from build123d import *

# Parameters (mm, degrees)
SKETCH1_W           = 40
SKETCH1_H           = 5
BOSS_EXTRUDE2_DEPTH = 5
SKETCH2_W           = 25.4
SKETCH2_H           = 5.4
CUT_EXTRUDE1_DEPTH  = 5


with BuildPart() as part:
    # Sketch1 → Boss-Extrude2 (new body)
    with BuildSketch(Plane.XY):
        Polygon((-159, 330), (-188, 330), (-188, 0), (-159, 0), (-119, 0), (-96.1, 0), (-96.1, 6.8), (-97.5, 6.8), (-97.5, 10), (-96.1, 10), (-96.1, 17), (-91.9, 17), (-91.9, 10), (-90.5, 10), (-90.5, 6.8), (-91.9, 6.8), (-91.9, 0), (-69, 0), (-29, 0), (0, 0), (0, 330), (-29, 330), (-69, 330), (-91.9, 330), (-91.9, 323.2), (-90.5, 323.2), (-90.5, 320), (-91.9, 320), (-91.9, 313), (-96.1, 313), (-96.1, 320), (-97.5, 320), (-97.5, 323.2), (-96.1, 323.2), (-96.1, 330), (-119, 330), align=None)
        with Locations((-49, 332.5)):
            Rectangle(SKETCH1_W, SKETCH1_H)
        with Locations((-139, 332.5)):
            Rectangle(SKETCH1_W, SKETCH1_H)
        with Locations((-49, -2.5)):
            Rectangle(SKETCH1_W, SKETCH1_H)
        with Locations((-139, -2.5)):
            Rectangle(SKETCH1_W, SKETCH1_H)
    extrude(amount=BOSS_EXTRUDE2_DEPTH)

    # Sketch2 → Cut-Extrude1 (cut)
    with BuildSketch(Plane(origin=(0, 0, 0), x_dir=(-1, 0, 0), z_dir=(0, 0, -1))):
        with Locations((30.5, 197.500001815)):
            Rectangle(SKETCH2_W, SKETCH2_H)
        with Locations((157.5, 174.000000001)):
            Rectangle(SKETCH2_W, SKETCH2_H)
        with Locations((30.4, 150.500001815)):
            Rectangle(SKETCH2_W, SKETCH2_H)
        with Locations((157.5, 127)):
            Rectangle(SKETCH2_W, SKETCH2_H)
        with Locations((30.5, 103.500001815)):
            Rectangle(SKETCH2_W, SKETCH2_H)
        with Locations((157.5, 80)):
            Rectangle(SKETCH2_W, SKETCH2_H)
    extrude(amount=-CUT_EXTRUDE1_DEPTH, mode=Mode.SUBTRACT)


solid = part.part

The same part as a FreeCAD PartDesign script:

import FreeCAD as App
import Part
import Sketcher
from FreeCAD import Vector


def add_polygon(sketch, points):
    """Adds a closed chain of lines whose ends are joined by coincident constraints."""
    first, n = sketch.GeometryCount, len(points)
    for a, b in zip(points, points[1:] + points[:1]):
        sketch.addGeometry(Part.LineSegment(App.Vector(*a, 0), App.Vector(*b, 0)), False)
    for i in range(n):
        sketch.addConstraint(Sketcher.Constraint("Coincident", first + i, 2, first + (i + 1) % n, 1))

doc = App.newDocument("Part")
body = doc.addObject("PartDesign::Body", "Body")

# Sketch on XY plane
sketch1 = doc.addObject("Sketcher::SketchObject", "Sketch")
body.addObject(sketch1)
sketch1.AttachmentSupport = (doc.XY_Plane, [""])
sketch1.MapMode = "FlatFace"
add_polygon(sketch1, [(-188, 330), (-188, 0), (-159, 0), (-159, -5), (-119, -5), (-119, 0), (-96.1, 0), (-96.1, 6.8), (-97.5, 6.8), (-97.5, 10), (-96.1, 10), (-96.1, 17), (-91.9, 17), (-91.9, 10), (-90.5, 10), (-90.5, 6.8), (-91.9, 6.8), (-91.9, 0), (-69, 0), (-69, -5), (-29, -5), (-29, 0), (0, 0), (0, 330), (-29, 330), (-29, 335), (-69, 335), (-69, 330), (-91.9, 330), (-91.9, 323.2), (-90.5, 323.2), (-90.5, 320), (-91.9, 320), (-91.9, 313), (-96.1, 313), (-96.1, 320), (-97.5, 320), (-97.5, 323.2), (-96.1, 323.2), (-96.1, 330), (-119, 330), (-119, 335), (-159, 335), (-159, 330)])  # lines 0-43
sketch1.addConstraint([
    Sketcher.Constraint("Vertical", 0),
    Sketcher.Constraint("Horizontal", 1),
    Sketcher.Constraint("Vertical", 2),
    Sketcher.Constraint("Horizontal", 3),
    Sketcher.Constraint("Vertical", 4),
    Sketcher.Constraint("Horizontal", 5),
    Sketcher.Constraint("Vertical", 6),
    Sketcher.Constraint("Horizontal", 7),
    Sketcher.Constraint("Vertical", 8),
    Sketcher.Constraint("Horizontal", 9),
    Sketcher.Constraint("Vertical", 10),
    Sketcher.Constraint("Horizontal", 11),
    Sketcher.Constraint("Vertical", 12),
    Sketcher.Constraint("Horizontal", 13),
    Sketcher.Constraint("Vertical", 14),
    Sketcher.Constraint("Horizontal", 15),
    Sketcher.Constraint("Vertical", 16),
    Sketcher.Constraint("Horizontal", 17),
    Sketcher.Constraint("Vertical", 18),
    Sketcher.Constraint("Horizontal", 19),
    Sketcher.Constraint("Vertical", 20),
    Sketcher.Constraint("Horizontal", 21),
    Sketcher.Constraint("Vertical", 22),
    Sketcher.Constraint("Horizontal", 23),
    Sketcher.Constraint("Vertical", 24),
    Sketcher.Constraint("Horizontal", 25),
    Sketcher.Constraint("Vertical", 26),
    Sketcher.Constraint("Horizontal", 27),
    Sketcher.Constraint("Vertical", 28),
    Sketcher.Constraint("Horizontal", 29),
    Sketcher.Constraint("Vertical", 30),
    Sketcher.Constraint("Horizontal", 31),
    Sketcher.Constraint("Vertical", 32),
    Sketcher.Constraint("Horizontal", 33),
    Sketcher.Constraint("Vertical", 34),
    Sketcher.Constraint("Horizontal", 35),
    Sketcher.Constraint("Vertical", 36),
    Sketcher.Constraint("Horizontal", 37),
    Sketcher.Constraint("Vertical", 38),
    Sketcher.Constraint("Horizontal", 39),
    Sketcher.Constraint("Vertical", 40),
    Sketcher.Constraint("Horizontal", 41),
    Sketcher.Constraint("Vertical", 42),
    Sketcher.Constraint("Horizontal", 43),
    Sketcher.Constraint("Coincident", 21, 2, -1, 1),
    Sketcher.Constraint("PointOnObject", 0, 2, -1),
    Sketcher.Constraint("PointOnObject", 4, 2, -1),
    Sketcher.Constraint("PointOnObject", 16, 2, -1),
    Sketcher.Constraint("Horizontal", 9, 2, 12, 2),
    Sketcher.Constraint("Horizontal", 7, 2, 14, 2),
    Sketcher.Constraint("Horizontal", 3, 2, 18, 2),
    Sketcher.Constraint("Horizontal", 23, 2, 26, 2),
    Sketcher.Constraint("Horizontal", 31, 2, 34, 2),
    Sketcher.Constraint("Horizontal", 29, 2, 36, 2),
    Sketcher.Constraint("Horizontal", 27, 2, 38, 2),
    Sketcher.Constraint("Horizontal", 25, 2, 40, 2),
    Sketcher.Constraint("Horizontal", 39, 2, 42, 2),
    Sketcher.Constraint("Vertical", 6, 2, 9, 2),
    Sketcher.Constraint("Vertical", 12, 2, 15, 2),
    Sketcher.Constraint("Vertical", 20, 2, 23, 2),
    Sketcher.Constraint("Vertical", 18, 2, 25, 2),
    Sketcher.Constraint("Vertical", 16, 2, 27, 2),
    Sketcher.Constraint("Vertical", 14, 2, 29, 2),
    Sketcher.Constraint("Vertical", 28, 2, 31, 2),
    Sketcher.Constraint("Vertical", 10, 2, 33, 2),
    Sketcher.Constraint("Vertical", 8, 2, 35, 2),
    Sketcher.Constraint("Vertical", 34, 2, 37, 2),
    Sketcher.Constraint("Vertical", 4, 2, 39, 2),
    Sketcher.Constraint("Vertical", 2, 2, 41, 2),
    Sketcher.Constraint("Equal", 9, 13),
    Sketcher.Constraint("Equal", 5, 17),
    Sketcher.Constraint("Equal", 3, 19),
    Sketcher.Constraint("Equal", 1, 21),
    Sketcher.Constraint("Equal", 20, 24),
    Sketcher.Constraint("Equal", 16, 28),
    Sketcher.Constraint("Equal", 14, 30),
    Sketcher.Constraint("Equal", 12, 32),
    Sketcher.Constraint("DistanceX", 1, 1, 1, 2, 29.0),
    Sketcher.Constraint("DistanceX", 3, 1, 3, 2, 40.0),
    Sketcher.Constraint("DistanceY", 0, 2, 0, 1, 330.0),
    Sketcher.Constraint("DistanceY", 2, 2, 2, 1, 5.0),
    Sketcher.Constraint("DistanceY", 10, 1, 10, 2, 7.0),
    Sketcher.Constraint("DistanceX", 5, 1, 5, 2, 22.9),
    Sketcher.Constraint("DistanceX", 7, 2, 7, 1, 1.4),
    Sketcher.Constraint("DistanceX", 11, 1, 11, 2, 4.2),
    Sketcher.Constraint("DistanceY", 6, 1, 6, 2, 6.8),
    Sketcher.Constraint("DistanceY", 8, 1, 8, 2, 3.2),
])
pad1 = doc.addObject("PartDesign::Pad", "Pad")
body.addObject(pad1)
pad1.Profile = sketch1
pad1.Length = 5

# Sketch on XY plane
sketch2 = doc.addObject("Sketcher::SketchObject", "Sketch001")
body.addObject(sketch2)
sketch2.AttachmentSupport = (doc.XY_Plane, [""])
sketch2.MapMode = "FlatFace"
add_polygon(sketch2, [(-18, 200), (-18, 195), (-43, 195), (-43, 200)])  # lines 0-3
add_polygon(sketch2, [(-145, 177), (-145, 171), (-170, 171), (-170, 177)])  # lines 4-7
add_polygon(sketch2, [(-18, 153), (-18, 148), (-43, 148), (-43, 153)])  # lines 8-11
add_polygon(sketch2, [(-145, 130), (-145, 124), (-170, 124), (-170, 130)])  # lines 12-15
add_polygon(sketch2, [(-18, 106), (-18, 101), (-43, 101), (-43, 106)])  # lines 16-19
add_polygon(sketch2, [(-145, 83), (-145, 77), (-170, 77), (-170, 83)])  # lines 20-23
sketch2.addConstraint([
    Sketcher.Constraint("Vertical", 0),
    Sketcher.Constraint("Horizontal", 1),
    Sketcher.Constraint("Vertical", 2),
    Sketcher.Constraint("Horizontal", 3),
    Sketcher.Constraint("Vertical", 4),
    Sketcher.Constraint("Horizontal", 5),
    Sketcher.Constraint("Vertical", 6),
    Sketcher.Constraint("Horizontal", 7),
    Sketcher.Constraint("Vertical", 8),
    Sketcher.Constraint("Horizontal", 9),
    Sketcher.Constraint("Vertical", 10),
    Sketcher.Constraint("Horizontal", 11),
    Sketcher.Constraint("Vertical", 12),
    Sketcher.Constraint("Horizontal", 13),
    Sketcher.Constraint("Vertical", 14),
    Sketcher.Constraint("Horizontal", 15),
    Sketcher.Constraint("Vertical", 16),
    Sketcher.Constraint("Horizontal", 17),
    Sketcher.Constraint("Vertical", 18),
    Sketcher.Constraint("Horizontal", 19),
    Sketcher.Constraint("Vertical", 20),
    Sketcher.Constraint("Horizontal", 21),
    Sketcher.Constraint("Vertical", 22),
    Sketcher.Constraint("Horizontal", 23),
    Sketcher.Constraint("Vertical", 7, 2, 12, 2),
    Sketcher.Constraint("Vertical", 6, 2, 13, 2),
    Sketcher.Constraint("Vertical", 3, 2, 16, 2),
    Sketcher.Constraint("Vertical", 2, 2, 17, 2),
    Sketcher.Constraint("Vertical", 15, 2, 20, 2),
    Sketcher.Constraint("Vertical", 14, 2, 21, 2),
    Sketcher.Constraint("Equal", 3, 5),
    Sketcher.Constraint("Equal", 7, 9),
    Sketcher.Constraint("Equal", 2, 4),
    Sketcher.Constraint("Equal", 6, 8),
    Sketcher.Constraint("Equal", 10, 12),
    Sketcher.Constraint("Equal", 14, 16),
    Sketcher.Constraint("Equal", 18, 20),
    Sketcher.Constraint("DistanceX", 1, 2, 1, 1, 25.4),
    Sketcher.Constraint("DistanceY", 0, 2, 0, 1, 5.4),
    Sketcher.Constraint("DistanceX", 4, 2, 0, 2, 127.0),
    Sketcher.Constraint("DistanceY", 8, 2, 0, 2, 47.0),
    Sketcher.Constraint("DistanceY", 12, 2, 4, 2, 47.0),
    Sketcher.Constraint("DistanceY", 16, 2, 8, 2, 47.0),
    Sketcher.Constraint("DistanceY", 20, 2, 12, 2, 47.0),
    Sketcher.Constraint("DistanceX", 0, 2, -1, 1, 17.8),
    Sketcher.Constraint("DistanceY", -1, 1, 0, 2, 194.800002),
    Sketcher.Constraint("DistanceY", -1, 1, 4, 2, 171.3),
    Sketcher.Constraint("DistanceX", 8, 2, -1, 1, 17.7),
])
pocket1 = doc.addObject("PartDesign::Pocket", "Pocket")
body.addObject(pocket1)
pocket1.Profile = sketch2
pocket1.Length = 5
pocket1.Reversed = True

doc.recompute()
